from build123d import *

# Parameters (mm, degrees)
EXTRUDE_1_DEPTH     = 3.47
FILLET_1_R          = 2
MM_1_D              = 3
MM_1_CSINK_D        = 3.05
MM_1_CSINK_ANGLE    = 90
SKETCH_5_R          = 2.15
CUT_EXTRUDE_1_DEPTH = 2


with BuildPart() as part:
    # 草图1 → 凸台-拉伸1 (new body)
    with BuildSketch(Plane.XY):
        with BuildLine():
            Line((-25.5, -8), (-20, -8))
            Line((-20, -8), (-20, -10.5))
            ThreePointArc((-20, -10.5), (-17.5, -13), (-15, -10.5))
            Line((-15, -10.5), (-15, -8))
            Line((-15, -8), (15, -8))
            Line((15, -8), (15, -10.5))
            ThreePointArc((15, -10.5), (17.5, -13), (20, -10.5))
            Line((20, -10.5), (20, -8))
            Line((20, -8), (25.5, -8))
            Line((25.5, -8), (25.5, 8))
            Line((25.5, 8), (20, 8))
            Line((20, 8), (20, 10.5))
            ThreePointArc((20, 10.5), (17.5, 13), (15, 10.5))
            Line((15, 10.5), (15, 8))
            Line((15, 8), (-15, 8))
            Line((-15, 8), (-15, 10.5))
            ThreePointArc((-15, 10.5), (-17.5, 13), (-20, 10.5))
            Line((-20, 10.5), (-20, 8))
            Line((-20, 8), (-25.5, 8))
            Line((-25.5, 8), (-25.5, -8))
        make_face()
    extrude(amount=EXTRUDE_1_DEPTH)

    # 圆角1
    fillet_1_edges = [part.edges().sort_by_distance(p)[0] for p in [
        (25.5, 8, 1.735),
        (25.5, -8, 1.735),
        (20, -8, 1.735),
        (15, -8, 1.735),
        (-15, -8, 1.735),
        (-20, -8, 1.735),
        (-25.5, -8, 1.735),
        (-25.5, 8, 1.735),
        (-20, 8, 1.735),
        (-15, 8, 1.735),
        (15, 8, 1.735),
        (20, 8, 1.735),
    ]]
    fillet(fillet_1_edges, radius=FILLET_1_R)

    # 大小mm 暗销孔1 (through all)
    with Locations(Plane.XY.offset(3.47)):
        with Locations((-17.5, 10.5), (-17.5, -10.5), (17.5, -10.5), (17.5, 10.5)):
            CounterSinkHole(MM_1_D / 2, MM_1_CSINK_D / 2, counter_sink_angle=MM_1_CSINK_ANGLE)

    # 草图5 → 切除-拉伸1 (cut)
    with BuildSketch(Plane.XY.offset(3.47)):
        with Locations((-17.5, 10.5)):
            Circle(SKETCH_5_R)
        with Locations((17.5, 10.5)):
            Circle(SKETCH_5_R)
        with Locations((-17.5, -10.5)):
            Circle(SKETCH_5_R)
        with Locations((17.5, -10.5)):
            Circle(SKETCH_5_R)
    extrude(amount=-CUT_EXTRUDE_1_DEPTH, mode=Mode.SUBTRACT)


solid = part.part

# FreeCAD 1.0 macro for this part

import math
import FreeCAD as App
import Part
import Sketcher

V = App.Vector


def edges_at(feature, points):
    """Names of the edges that pass closest to the given points."""
    edges = feature.Shape.Edges
    near = lambda p: min(range(len(edges)), key=lambda i: edges[i].distToShape(Part.Vertex(*p))[0])
    return sorted({f"Edge{near(p) + 1}" for p in points})

doc = App.newDocument("Part")
body = doc.addObject("PartDesign::Body", "Body")

# Sketch on XY plane
sketch1 = body.newObject("Sketcher::SketchObject", "Sketch")
sketch1.AttachmentSupport = (doc.getObject("XY_Plane"), [""])
sketch1.MapMode = "FlatFace"
sketch1.addGeometry(Part.LineSegment(V(-25.5, -8, 0), V(-20, -8, 0)), False)
sketch1.addGeometry(Part.LineSegment(V(-20, -8, 0), V(-20, -10.5, 0)), False)
sketch1.addGeometry(Part.ArcOfCircle(Part.Circle(V(-17.5, -10.5, 0), V(0, 0, 1), 2.5), math.radians(180), math.radians(360)), False)
sketch1.addGeometry(Part.LineSegment(V(-15, -10.5, 0), V(-15, -8, 0)), False)
sketch1.addGeometry(Part.LineSegment(V(-15, -8, 0), V(15, -8, 0)), False)
sketch1.addGeometry(Part.LineSegment(V(15, -8, 0), V(15, -10.5, 0)), False)
sketch1.addGeometry(Part.ArcOfCircle(Part.Circle(V(17.5, -10.5, 0), V(0, 0, 1), 2.5), math.radians(180), math.radians(360)), False)
sketch1.addGeometry(Part.LineSegment(V(20, -10.5, 0), V(20, -8, 0)), False)
sketch1.addGeometry(Part.LineSegment(V(20, -8, 0), V(25.5, -8, 0)), False)
sketch1.addGeometry(Part.LineSegment(V(25.5, -8, 0), V(25.5, 8, 0)), False)
sketch1.addGeometry(Part.LineSegment(V(25.5, 8, 0), V(20, 8, 0)), False)
sketch1.addGeometry(Part.LineSegment(V(20, 8, 0), V(20, 10.5, 0)), False)
sketch1.addGeometry(Part.ArcOfCircle(Part.Circle(V(17.5, 10.5, 0), V(0, 0, 1), 2.5), math.radians(0), math.radians(180)), False)
sketch1.addGeometry(Part.LineSegment(V(15, 10.5, 0), V(15, 8, 0)), False)
sketch1.addGeometry(Part.LineSegment(V(15, 8, 0), V(-15, 8, 0)), False)
sketch1.addGeometry(Part.LineSegment(V(-15, 8, 0), V(-15, 10.5, 0)), False)
sketch1.addGeometry(Part.ArcOfCircle(Part.Circle(V(-17.5, 10.5, 0), V(0, 0, 1), 2.5), math.radians(0), math.radians(180)), False)
sketch1.addGeometry(Part.LineSegment(V(-20, 10.5, 0), V(-20, 8, 0)), False)
sketch1.addGeometry(Part.LineSegment(V(-20, 8, 0), V(-25.5, 8, 0)), False)
sketch1.addGeometry(Part.LineSegment(V(-25.5, 8, 0), V(-25.5, -8, 0)), False)
sketch1.addConstraint(Sketcher.Constraint("Coincident", 0, 2, 1, 1))
sketch1.addConstraint(Sketcher.Constraint("Tangent", 1, 2, 2, 1))
sketch1.addConstraint(Sketcher.Constraint("Tangent", 2, 2, 3, 1))
sketch1.addConstraint(Sketcher.Constraint("Coincident", 3, 2, 4, 1))
sketch1.addConstraint(Sketcher.Constraint("Coincident", 4, 2, 5, 1))
sketch1.addConstraint(Sketcher.Constraint("Tangent", 5, 2, 6, 1))
sketch1.addConstraint(Sketcher.Constraint("Tangent", 6, 2, 7, 1))
sketch1.addConstraint(Sketcher.Constraint("Coincident", 7, 2, 8, 1))
sketch1.addConstraint(Sketcher.Constraint("Coincident", 8, 2, 9, 1))
sketch1.addConstraint(Sketcher.Constraint("Coincident", 9, 2, 10, 1))
sketch1.addConstraint(Sketcher.Constraint("Coincident", 10, 2, 11, 1))
sketch1.addConstraint(Sketcher.Constraint("Tangent", 11, 2, 12, 1))
sketch1.addConstraint(Sketcher.Constraint("Tangent", 12, 2, 13, 1))
sketch1.addConstraint(Sketcher.Constraint("Coincident", 13, 2, 14, 1))
sketch1.addConstraint(Sketcher.Constraint("Coincident", 14, 2, 15, 1))
sketch1.addConstraint(Sketcher.Constraint("Tangent", 15, 2, 16, 1))
sketch1.addConstraint(Sketcher.Constraint("Tangent", 16, 2, 17, 1))
sketch1.addConstraint(Sketcher.Constraint("Coincident", 17, 2, 18, 1))
sketch1.addConstraint(Sketcher.Constraint("Coincident", 18, 2, 19, 1))
sketch1.addConstraint(Sketcher.Constraint("Coincident", 19, 2, 0, 1))
sketch1.addConstraint(Sketcher.Constraint("Horizontal", 0))
sketch1.addConstraint(Sketcher.Constraint("Vertical", 1))
sketch1.addConstraint(Sketcher.Constraint("Vertical", 3))
sketch1.addConstraint(Sketcher.Constraint("Horizontal", 4))
sketch1.addConstraint(Sketcher.Constraint("Vertical", 5))
sketch1.addConstraint(Sketcher.Constraint("Vertical", 7))
sketch1.addConstraint(Sketcher.Constraint("Horizontal", 8))
sketch1.addConstraint(Sketcher.Constraint("Vertical", 9))
sketch1.addConstraint(Sketcher.Constraint("Horizontal", 10))
sketch1.addConstraint(Sketcher.Constraint("Vertical", 11))
sketch1.addConstraint(Sketcher.Constraint("Vertical", 13))
sketch1.addConstraint(Sketcher.Constraint("Horizontal", 14))
sketch1.addConstraint(Sketcher.Constraint("Vertical", 15))
sketch1.addConstraint(Sketcher.Constraint("Vertical", 17))
sketch1.addConstraint(Sketcher.Constraint("Horizontal", 18))
sketch1.addConstraint(Sketcher.Constraint("Vertical", 19))
sketch1.addConstraint(Sketcher.Constraint("Equal", 2, 6))
sketch1.addConstraint(Sketcher.Constraint("Equal", 6, 12))
sketch1.addConstraint(Sketcher.Constraint("Equal", 12, 16))
sketch1.addConstraint(Sketcher.Constraint("Symmetric", 2, 3, 12, 3, -1, 1))
sketch1.addConstraint(Sketcher.Constraint("Symmetric", 6, 3, 16, 3, -1, 1))
sketch1.addConstraint(Sketcher.Constraint("Symmetric", 8, 2, 18, 2, -1, 1))
sketch1.addConstraint(Sketcher.Constraint("Symmetric", 2, 3, 6, 3, -2))
sketch1.addConstraint(Sketcher.Constraint("Horizontal", 0, 2, 3, 2))
sketch1.addConstraint(Sketcher.Constraint("Horizontal", 4, 2, 7, 2))
sketch1.addConstraint(Sketcher.Constraint("Horizontal", 10, 2, 13, 2))
sketch1.addConstraint(Sketcher.Constraint("Horizontal", 14, 2, 17, 2))
sketch1.addConstraint(Sketcher.Constraint("Radius", 2, 2.5))
sketch1.addConstraint(Sketcher.Constraint("DistanceX", 4, 1, 4, 2, 30.0))
sketch1.addConstraint(Sketcher.Constraint("DistanceY", 9, 1, 9, 2, 16.0))
sketch1.addConstraint(Sketcher.Constraint("DistanceX", 0, 1, 0, 2, 5.5))
sketch1.addConstraint(Sketcher.Constraint("DistanceY", 1, 2, 1, 1, 2.5))
pad1 = body.newObject("PartDesign::Pad", "Pad")
pad1.Profile = sketch1
pad1.Length = 3.47
doc.recompute()

fillet = body.newObject("PartDesign::Fillet", "Fillet")
fillet.Base = (pad1, edges_at(pad1, [
    (25.5, 8, 1.735),
    (25.5, -8, 1.735),
    (20, -8, 1.735),
    (15, -8, 1.735),
    (-15, -8, 1.735),
    (-20, -8, 1.735),
    (-25.5, -8, 1.735),
    (-25.5, 8, 1.735),
    (-20, 8, 1.735),
    (-15, 8, 1.735),
    (15, 8, 1.735),
    (20, 8, 1.735),
]))
fillet.Radius = 2

# Sketch on XY plane
sketch2 = body.newObject("Sketcher::SketchObject", "Sketch001")
sketch2.AttachmentSupport = (doc.getObject("XY_Plane"), [""])
sketch2.MapMode = "FlatFace"
sketch2.AttachmentOffset = App.Placement(V(0, 0, 3.47), App.Rotation())
sketch2.addGeometry(Part.Circle(V(-17.5, 10.5, 0), V(0, 0, 1), 1.5), False)
sketch2.addGeometry(Part.Circle(V(-17.5, -10.5, 0), V(0, 0, 1), 1.5), False)
sketch2.addGeometry(Part.Circle(V(17.5, -10.5, 0), V(0, 0, 1), 1.5), False)
sketch2.addGeometry(Part.Circle(V(17.5, 10.5, 0), V(0, 0, 1), 1.5), False)
sketch2.addConstraint(Sketcher.Constraint("Equal", 0, 1))
sketch2.addConstraint(Sketcher.Constraint("Equal", 1, 2))
sketch2.addConstraint(Sketcher.Constraint("Equal", 2, 3))
sketch2.addConstraint(Sketcher.Constraint("Symmetric", 0, 3, 2, 3, -1, 1))
sketch2.addConstraint(Sketcher.Constraint("Symmetric", 1, 3, 3, 3, -1, 1))
sketch2.addConstraint(Sketcher.Constraint("Symmetric", 1, 3, 2, 3, -2))
sketch2.addConstraint(Sketcher.Constraint("Diameter", 0, 3.0))
sketch2.addConstraint(Sketcher.Constraint("DistanceY", 1, 3, 0, 3, 21.0))
sketch2.addConstraint(Sketcher.Constraint("DistanceX", 1, 3, 2, 3, 35.0))
doc.recompute()
hole = body.newObject("PartDesign::Hole", "Hole")
hole.Profile = sketch2
hole.ThreadType = "None"
hole.Diameter = 3
hole.DepthType = "ThroughAll"
hole.HoleCutType = "Countersink"
hole.HoleCutDiameter = 3.05
hole.HoleCutCountersinkAngle = 90

# Sketch on XY plane
sketch3 = body.newObject("Sketcher::SketchObject", "Sketch002")
sketch3.AttachmentSupport = (doc.getObject("XY_Plane"), [""])
sketch3.MapMode = "FlatFace"
sketch3.AttachmentOffset = App.Placement(V(0, 0, 3.47), App.Rotation())
sketch3.addGeometry(Part.Circle(V(-17.5, 10.5, 0), V(0, 0, 1), 2.15), False)
sketch3.addGeometry(Part.Circle(V(17.5, 10.5, 0), V(0, 0, 1), 2.15), False)
sketch3.addGeometry(Part.Circle(V(-17.5, -10.5, 0), V(0, 0, 1), 2.15), False)
sketch3.addGeometry(Part.Circle(V(17.5, -10.5, 0), V(0, 0, 1), 2.15), False)
sketch3.addConstraint(Sketcher.Constraint("Equal", 0, 1))
sketch3.addConstraint(Sketcher.Constraint("Equal", 1, 2))
sketch3.addConstraint(Sketcher.Constraint("Equal", 2, 3))
sketch3.addConstraint(Sketcher.Constraint("Symmetric", 1, 3, 2, 3, -1, 1))
sketch3.addConstraint(Sketcher.Constraint("Symmetric", 0, 3, 3, 3, -1, 1))
sketch3.addConstraint(Sketcher.Constraint("Symmetric", 0, 3, 1, 3, -2))
sketch3.addConstraint(Sketcher.Constraint("Diameter", 0, 4.3))
sketch3.addConstraint(Sketcher.Constraint("DistanceX", 0, 3, 1, 3, 35.0))
sketch3.addConstraint(Sketcher.Constraint("DistanceY", 2, 3, 0, 3, 21.0))
pocket1 = body.newObject("PartDesign::Pocket", "Pocket")
pocket1.Profile = sketch3
pocket1.Length = 2

doc.recompute()
